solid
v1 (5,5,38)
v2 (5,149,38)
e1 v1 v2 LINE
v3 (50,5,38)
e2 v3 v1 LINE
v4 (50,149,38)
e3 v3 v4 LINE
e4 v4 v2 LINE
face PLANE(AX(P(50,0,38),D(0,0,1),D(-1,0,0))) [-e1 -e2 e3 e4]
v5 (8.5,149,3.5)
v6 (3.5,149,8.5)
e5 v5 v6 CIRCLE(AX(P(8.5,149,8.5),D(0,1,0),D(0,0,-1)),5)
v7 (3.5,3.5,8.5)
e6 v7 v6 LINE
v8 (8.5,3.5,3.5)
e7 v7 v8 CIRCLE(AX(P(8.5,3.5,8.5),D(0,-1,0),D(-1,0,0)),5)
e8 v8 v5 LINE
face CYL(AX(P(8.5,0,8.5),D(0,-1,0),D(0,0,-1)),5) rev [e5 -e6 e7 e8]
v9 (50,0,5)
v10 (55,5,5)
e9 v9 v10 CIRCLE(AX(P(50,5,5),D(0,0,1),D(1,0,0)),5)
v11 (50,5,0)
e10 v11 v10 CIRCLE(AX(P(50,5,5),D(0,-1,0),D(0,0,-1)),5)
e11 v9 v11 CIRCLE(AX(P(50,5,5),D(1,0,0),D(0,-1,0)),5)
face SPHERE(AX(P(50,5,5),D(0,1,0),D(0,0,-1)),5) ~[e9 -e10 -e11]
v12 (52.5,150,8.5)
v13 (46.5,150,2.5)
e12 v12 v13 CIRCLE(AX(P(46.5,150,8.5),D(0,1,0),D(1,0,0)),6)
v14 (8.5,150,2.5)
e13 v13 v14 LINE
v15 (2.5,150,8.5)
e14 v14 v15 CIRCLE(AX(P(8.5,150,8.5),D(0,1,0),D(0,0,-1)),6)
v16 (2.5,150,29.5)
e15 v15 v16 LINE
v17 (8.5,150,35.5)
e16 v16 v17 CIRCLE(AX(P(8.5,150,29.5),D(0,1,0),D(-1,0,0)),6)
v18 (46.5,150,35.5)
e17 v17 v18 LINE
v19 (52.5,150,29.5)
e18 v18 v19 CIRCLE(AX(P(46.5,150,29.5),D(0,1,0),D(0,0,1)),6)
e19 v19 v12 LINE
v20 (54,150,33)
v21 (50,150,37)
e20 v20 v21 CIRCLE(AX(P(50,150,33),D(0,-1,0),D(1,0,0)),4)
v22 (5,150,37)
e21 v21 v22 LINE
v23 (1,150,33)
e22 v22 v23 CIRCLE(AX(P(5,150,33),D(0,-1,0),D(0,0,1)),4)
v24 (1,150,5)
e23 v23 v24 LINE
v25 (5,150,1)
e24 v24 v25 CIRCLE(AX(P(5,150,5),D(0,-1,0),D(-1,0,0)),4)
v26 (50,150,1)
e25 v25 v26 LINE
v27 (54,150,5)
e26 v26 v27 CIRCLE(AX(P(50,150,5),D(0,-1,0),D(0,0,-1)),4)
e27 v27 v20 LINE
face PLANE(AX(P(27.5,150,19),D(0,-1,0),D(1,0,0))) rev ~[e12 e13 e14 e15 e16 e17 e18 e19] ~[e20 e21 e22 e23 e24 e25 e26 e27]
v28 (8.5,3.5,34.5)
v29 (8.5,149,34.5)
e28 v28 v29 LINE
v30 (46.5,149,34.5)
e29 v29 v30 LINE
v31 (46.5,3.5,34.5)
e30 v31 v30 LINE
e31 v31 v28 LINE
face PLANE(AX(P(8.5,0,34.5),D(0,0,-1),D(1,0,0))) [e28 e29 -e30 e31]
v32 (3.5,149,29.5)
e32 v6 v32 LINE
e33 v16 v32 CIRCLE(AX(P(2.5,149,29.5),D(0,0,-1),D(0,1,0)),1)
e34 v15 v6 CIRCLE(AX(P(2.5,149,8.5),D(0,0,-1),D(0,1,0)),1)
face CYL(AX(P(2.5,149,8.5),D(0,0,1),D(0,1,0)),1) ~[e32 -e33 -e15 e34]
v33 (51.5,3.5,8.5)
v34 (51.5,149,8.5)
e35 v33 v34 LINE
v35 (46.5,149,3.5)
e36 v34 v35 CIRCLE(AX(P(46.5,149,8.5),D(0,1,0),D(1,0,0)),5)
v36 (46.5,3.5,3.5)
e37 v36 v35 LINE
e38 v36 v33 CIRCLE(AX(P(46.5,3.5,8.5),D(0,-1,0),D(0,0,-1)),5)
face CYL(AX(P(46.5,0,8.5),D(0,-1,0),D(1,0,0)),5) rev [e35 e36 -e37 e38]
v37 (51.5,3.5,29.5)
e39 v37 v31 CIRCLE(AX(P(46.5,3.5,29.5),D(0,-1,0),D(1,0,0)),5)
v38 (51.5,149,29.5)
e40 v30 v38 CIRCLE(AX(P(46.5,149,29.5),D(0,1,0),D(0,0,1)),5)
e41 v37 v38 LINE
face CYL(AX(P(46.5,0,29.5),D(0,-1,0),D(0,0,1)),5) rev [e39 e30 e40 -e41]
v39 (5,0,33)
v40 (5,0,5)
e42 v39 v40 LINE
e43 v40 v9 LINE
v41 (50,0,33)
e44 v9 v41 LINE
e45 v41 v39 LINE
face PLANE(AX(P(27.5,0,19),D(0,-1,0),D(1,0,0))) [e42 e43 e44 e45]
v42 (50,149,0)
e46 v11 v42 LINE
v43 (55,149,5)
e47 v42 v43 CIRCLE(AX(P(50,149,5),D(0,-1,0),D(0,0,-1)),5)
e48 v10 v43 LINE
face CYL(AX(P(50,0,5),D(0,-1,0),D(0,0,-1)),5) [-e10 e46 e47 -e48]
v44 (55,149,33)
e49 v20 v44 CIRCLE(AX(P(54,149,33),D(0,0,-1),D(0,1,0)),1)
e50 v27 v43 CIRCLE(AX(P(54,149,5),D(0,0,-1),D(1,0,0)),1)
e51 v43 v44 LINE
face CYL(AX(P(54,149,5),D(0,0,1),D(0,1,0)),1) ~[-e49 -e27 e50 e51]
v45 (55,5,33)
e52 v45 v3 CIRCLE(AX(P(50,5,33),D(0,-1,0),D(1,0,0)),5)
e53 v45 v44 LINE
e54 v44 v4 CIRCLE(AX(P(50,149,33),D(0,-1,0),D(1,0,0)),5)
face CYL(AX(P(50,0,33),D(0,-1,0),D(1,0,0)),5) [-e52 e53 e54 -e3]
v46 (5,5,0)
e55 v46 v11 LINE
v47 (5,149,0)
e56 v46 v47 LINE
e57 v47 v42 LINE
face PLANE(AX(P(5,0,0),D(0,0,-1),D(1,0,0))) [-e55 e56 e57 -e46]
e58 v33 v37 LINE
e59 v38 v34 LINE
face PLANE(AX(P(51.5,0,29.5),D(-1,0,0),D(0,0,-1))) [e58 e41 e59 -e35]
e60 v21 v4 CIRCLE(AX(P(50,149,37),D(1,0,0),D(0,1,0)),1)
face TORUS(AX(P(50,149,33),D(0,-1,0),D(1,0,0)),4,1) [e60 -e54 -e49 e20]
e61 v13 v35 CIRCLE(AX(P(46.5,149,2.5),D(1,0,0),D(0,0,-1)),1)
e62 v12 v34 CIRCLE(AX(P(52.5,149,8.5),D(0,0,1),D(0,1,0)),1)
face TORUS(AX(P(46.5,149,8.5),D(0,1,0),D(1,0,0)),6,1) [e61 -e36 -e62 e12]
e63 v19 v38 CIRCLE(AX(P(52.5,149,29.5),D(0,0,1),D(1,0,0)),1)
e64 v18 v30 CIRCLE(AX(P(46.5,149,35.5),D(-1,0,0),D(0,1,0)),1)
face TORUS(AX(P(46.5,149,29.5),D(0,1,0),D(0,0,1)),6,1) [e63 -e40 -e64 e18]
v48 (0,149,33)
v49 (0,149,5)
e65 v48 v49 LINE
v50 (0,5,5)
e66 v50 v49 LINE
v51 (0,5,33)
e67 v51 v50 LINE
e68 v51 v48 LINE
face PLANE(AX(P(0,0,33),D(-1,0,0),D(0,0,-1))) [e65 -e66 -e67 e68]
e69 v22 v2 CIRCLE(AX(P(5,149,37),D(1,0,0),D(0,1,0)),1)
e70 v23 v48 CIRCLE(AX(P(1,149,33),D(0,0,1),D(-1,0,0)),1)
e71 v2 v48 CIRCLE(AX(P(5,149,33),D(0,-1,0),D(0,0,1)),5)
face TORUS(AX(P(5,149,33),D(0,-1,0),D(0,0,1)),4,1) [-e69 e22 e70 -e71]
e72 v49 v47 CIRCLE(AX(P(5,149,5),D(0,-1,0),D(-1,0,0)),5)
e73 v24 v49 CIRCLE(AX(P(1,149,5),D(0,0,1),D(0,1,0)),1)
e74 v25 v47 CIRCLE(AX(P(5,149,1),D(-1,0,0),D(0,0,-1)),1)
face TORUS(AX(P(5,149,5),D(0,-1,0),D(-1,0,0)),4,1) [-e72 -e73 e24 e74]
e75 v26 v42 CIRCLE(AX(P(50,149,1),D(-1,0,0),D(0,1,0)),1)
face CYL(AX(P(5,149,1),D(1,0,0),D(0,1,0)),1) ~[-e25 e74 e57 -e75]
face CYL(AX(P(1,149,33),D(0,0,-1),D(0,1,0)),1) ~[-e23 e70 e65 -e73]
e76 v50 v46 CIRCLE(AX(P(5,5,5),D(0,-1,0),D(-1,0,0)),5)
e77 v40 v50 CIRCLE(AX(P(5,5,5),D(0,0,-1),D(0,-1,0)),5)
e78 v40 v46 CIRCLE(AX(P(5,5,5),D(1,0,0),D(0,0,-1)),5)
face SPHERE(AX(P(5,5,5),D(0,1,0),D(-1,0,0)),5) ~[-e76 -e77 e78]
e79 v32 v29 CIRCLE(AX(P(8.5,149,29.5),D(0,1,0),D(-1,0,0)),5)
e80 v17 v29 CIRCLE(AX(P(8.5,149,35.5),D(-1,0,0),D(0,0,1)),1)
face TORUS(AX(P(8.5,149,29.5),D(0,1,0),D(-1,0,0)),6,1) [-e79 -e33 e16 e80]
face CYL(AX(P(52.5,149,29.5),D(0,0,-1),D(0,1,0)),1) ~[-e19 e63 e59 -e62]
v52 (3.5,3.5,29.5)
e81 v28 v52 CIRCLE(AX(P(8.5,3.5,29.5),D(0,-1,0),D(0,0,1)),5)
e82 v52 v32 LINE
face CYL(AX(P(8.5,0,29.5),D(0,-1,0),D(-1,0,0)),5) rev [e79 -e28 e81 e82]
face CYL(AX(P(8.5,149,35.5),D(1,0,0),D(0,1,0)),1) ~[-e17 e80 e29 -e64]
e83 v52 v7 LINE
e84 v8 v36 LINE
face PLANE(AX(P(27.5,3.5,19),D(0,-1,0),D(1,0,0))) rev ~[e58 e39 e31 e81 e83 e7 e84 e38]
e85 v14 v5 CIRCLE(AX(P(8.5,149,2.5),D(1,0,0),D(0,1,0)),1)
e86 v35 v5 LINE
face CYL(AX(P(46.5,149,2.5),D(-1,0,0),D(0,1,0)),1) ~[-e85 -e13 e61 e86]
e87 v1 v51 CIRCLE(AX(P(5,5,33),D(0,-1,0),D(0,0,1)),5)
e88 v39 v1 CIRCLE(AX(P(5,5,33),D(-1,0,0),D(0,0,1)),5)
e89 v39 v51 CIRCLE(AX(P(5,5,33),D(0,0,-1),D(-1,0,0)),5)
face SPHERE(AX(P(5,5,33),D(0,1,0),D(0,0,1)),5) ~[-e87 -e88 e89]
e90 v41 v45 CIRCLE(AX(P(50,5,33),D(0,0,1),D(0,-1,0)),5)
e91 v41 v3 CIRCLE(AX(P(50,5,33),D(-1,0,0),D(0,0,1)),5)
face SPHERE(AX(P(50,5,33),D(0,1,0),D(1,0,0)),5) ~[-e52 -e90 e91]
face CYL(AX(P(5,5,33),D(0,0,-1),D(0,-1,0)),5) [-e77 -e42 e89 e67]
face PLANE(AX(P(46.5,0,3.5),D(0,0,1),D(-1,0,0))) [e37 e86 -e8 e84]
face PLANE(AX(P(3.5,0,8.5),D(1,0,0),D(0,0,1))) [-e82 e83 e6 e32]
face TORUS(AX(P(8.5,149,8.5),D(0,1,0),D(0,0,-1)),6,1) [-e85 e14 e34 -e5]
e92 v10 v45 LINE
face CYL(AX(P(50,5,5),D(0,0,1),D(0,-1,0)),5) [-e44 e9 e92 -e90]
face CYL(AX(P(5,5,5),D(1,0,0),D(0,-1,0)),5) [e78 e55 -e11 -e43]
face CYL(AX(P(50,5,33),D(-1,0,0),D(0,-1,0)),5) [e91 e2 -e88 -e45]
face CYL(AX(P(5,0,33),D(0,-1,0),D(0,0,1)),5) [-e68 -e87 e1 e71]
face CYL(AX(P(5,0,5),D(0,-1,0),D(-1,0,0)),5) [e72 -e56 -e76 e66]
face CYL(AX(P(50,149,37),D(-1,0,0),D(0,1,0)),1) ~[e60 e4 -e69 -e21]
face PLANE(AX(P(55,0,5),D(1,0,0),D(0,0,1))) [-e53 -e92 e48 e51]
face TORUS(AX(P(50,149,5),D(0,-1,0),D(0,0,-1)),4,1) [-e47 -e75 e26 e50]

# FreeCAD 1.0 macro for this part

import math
import FreeCAD as App
import Part
import Sketcher

V = App.Vector


def edges_at(feature, points):
    """Names of the edges that pass closest to the given points."""
    edges = feature.Shape.Edges
    near = lambda p: min(range(len(edges)), key=lambda i: edges[i].distToShape(Part.Vertex(*p))[0])
    return sorted({f"Edge{near(p) + 1}" for p in points})

doc = App.newDocument("Part")
params = doc.addObject("Spreadsheet::Sheet", "Params")
for row, (alias, value) in enumerate([
    ("sketch1_radius", "5 mm"),
    ("sketch1_width", "38 mm"),
    ("sketch1_height", "21 mm"),
    ("pad1_length", "3.5 mm"),
    ("sketch2_radius", "5 mm"),
    ("sketch2_width", "45 mm"),
    ("sketch2_width2", "38 mm"),
    ("sketch2_height", "28 mm"),
    ("sketch2_height2", "21 mm"),
    ("pad2_length", "150 mm"),
    ("fillet_radius", "5 mm"),
    ("fillet2_radius", "1 mm"),
], start=1):
    params.set(f"A{row}", alias)
    params.set(f"B{row}", "=" + value)
    params.setAlias(f"B{row}", alias)

body = doc.addObject("PartDesign::Body", "Body")

# Sketch on XZ plane
sketch1 = doc.addObject("Sketcher::SketchObject", "Sketch")
body.addObject(sketch1)
sketch1.AttachmentSupport = (doc.XZ_Plane, [""])
sketch1.MapMode = "FlatFace"
sketch1.addGeometry([
    Part.ArcOfCircle(Part.Circle(V(8, 8, 0), V(0, 0, 1), 5), math.radians(180), math.radians(270)),  # 0
    Part.LineSegment(V(8, 4, 0), V(46, 4, 0)),  # 1
    Part.ArcOfCircle(Part.Circle(V(46, 8, 0), V(0, 0, 1), 5), math.radians(-90), math.radians(0)),  # 2
    Part.LineSegment(V(52, 8, 0), V(52, 30, 0)),  # 3
    Part.ArcOfCircle(Part.Circle(V(46, 30, 0), V(0, 0, 1), 5), math.radians(0), math.radians(90)),  # 4
    Part.LineSegment(V(46, 34, 0), V(8, 34, 0)),  # 5
    Part.ArcOfCircle(Part.Circle(V(8, 30, 0), V(0, 0, 1), 5), math.radians(90), math.radians(180)),  # 6
    Part.LineSegment(V(4, 30, 0), V(4, 8, 0)),  # 7
], False)
sketch1.addConstraint([
    Sketcher.Constraint("Tangent", 0, 2, 1, 1),
    Sketcher.Constraint("Tangent", 1, 2, 2, 1),
    Sketcher.Constraint("Tangent", 2, 2, 3, 1),
    Sketcher.Constraint("Tangent", 3, 2, 4, 1),
    Sketcher.Constraint("Tangent", 4, 2, 5, 1),
    Sketcher.Constraint("Tangent", 5, 2, 6, 1),
    Sketcher.Constraint("Tangent", 6, 2, 7, 1),
    Sketcher.Constraint("Tangent", 7, 2, 0, 1),
    Sketcher.Constraint("Horizontal", 1),
    Sketcher.Constraint("Vertical", 3),
    Sketcher.Constraint("Horizontal", 5),
    Sketcher.Constraint("Vertical", 7),
    Sketcher.Constraint("Equal", 0, 2),
    Sketcher.Constraint("Equal", 2, 4),
    Sketcher.Constraint("Equal", 4, 6),
    Sketcher.Constraint("Radius", 0, 5.0),
    Sketcher.Constraint("DistanceX", 1, 1, 1, 2, 38.0),
    Sketcher.Constraint("DistanceY", 3, 1, 3, 2, 21.0),
    Sketcher.Constraint("DistanceX", -1, 1, 0, 3, 8.5),
    Sketcher.Constraint("DistanceY", -1, 1, 0, 3, 8.5),
])
sketch1.setExpression("Constraints[15]", "Params.sketch1_radius")
sketch1.setExpression("Constraints[16]", "Params.sketch1_width")
sketch1.setExpression("Constraints[17]", "Params.sketch1_height")
pad1 = doc.addObject("PartDesign::Pad", "Pad")
body.addObject(pad1)
pad1.Profile = sketch1
pad1.setExpression("Length", "Params.pad1_length")
pad1.Reversed = True

# Sketch on XZ plane
sketch2 = doc.addObject("Sketcher::SketchObject", "Sketch001")
body.addObject(sketch2)
sketch2.AttachmentSupport = (doc.XZ_Plane, [""])
sketch2.MapMode = "FlatFace"
sketch2.addGeometry([
    Part.ArcOfCircle(Part.Circle(V(5, 5, 0), V(0, 0, 1), 5), math.radians(180), math.radians(270)),  # 0
    Part.LineSegment(V(5, 0, 0), V(50, 0, 0)),  # 1
    Part.ArcOfCircle(Part.Circle(V(50, 5, 0), V(0, 0, 1), 5), math.radians(-90), math.radians(0)),  # 2
    Part.LineSegment(V(55, 5, 0), V(55, 33, 0)),  # 3
    Part.ArcOfCircle(Part.Circle(V(50, 33, 0), V(0, 0, 1), 5), math.radians(0), math.radians(90)),  # 4
    Part.LineSegment(V(50, 38, 0), V(5, 38, 0)),  # 5
    Part.ArcOfCircle(Part.Circle(V(5, 33, 0), V(0, 0, 1), 5), math.radians(90), math.radians(180)),  # 6
    Part.LineSegment(V(0, 33, 0), V(0, 5, 0)),  # 7
    Part.ArcOfCircle(Part.Circle(V(46, 8, 0), V(0, 0, 1), 5), math.radians(-90), math.radians(0)),  # 8
    Part.LineSegment(V(46, 4, 0), V(8, 4, 0)),  # 9
    Part.ArcOfCircle(Part.Circle(V(8, 8, 0), V(0, 0, 1), 5), math.radians(180), math.radians(270)),  # 10
    Part.LineSegment(V(4, 8, 0), V(4, 30, 0)),  # 11
    Part.ArcOfCircle(Part.Circle(V(8, 30, 0), V(0, 0, 1), 5), math.radians(90), math.radians(180)),  # 12
    Part.LineSegment(V(8, 34, 0), V(46, 34, 0)),  # 13
    Part.ArcOfCircle(Part.Circle(V(46, 30, 0), V(0, 0, 1), 5), math.radians(0), math.radians(90)),  # 14
    Part.LineSegment(V(52, 30, 0), V(52, 8, 0)),  # 15
], False)
sketch2.addConstraint([
    Sketcher.Constraint("Tangent", 0, 2, 1, 1),
    Sketcher.Constraint("Tangent", 1, 2, 2, 1),
    Sketcher.Constraint("Tangent", 2, 2, 3, 1),
    Sketcher.Constraint("Tangent", 3, 2, 4, 1),
    Sketcher.Constraint("Tangent", 4, 2, 5, 1),
    Sketcher.Constraint("Tangent", 5, 2, 6, 1),
    Sketcher.Constraint("Tangent", 6, 2, 7, 1),
    Sketcher.Constraint("Tangent", 7, 2, 0, 1),
    Sketcher.Constraint("Tangent", 8, 1, 9, 1),
    Sketcher.Constraint("Tangent", 9, 2, 10, 2),
    Sketcher.Constraint("Tangent", 10, 1, 11, 1),
    Sketcher.Constraint("Tangent", 11, 2, 12, 2),
    Sketcher.Constraint("Tangent", 12, 1, 13, 1),
    Sketcher.Constraint("Tangent", 13, 2, 14, 2),
    Sketcher.Constraint("Tangent", 14, 1, 15, 1),
    Sketcher.Constraint("Tangent", 15, 2, 8, 2),
    Sketcher.Constraint("Horizontal", 1),
    Sketcher.Constraint("Vertical", 3),
    Sketcher.Constraint("Horizontal", 5),
    Sketcher.Constraint("Vertical", 7),
    Sketcher.Constraint("Horizontal", 9),
    Sketcher.Constraint("Vertical", 11),
    Sketcher.Constraint("Horizontal", 13),
    Sketcher.Constraint("Vertical", 15),
    Sketcher.Constraint("Equal", 0, 2),
    Sketcher.Constraint("Equal", 2, 4),
    Sketcher.Constraint("Equal", 4, 6),
    Sketcher.Constraint("Equal", 6, 8),
    Sketcher.Constraint("Equal", 8, 10),
    Sketcher.Constraint("Equal", 10, 12),
    Sketcher.Constraint("Equal", 12, 14),
    Sketcher.Constraint("PointOnObject", 0, 2, -1),
    Sketcher.Constraint("PointOnObject", 6, 2, -2),
    Sketcher.Constraint("Radius", 0, 5.0),
    Sketcher.Constraint("DistanceX", 1, 1, 1, 2, 45.0),
    Sketcher.Constraint("DistanceX", 9, 2, 9, 1, 38.0),
    Sketcher.Constraint("DistanceY", 3, 1, 3, 2, 28.0),
    Sketcher.Constraint("DistanceY", 11, 1, 11, 2, 21.0),
    Sketcher.Constraint("DistanceX", -1, 1, 8, 3, 46.5),
    Sketcher.Constraint("DistanceY", -1, 1, 8, 3, 8.5),
])
sketch2.setExpression("Constraints[33]", "Params.sketch2_radius")
sketch2.setExpression("Constraints[34]", "Params.sketch2_width")
sketch2.setExpression("Constraints[35]", "Params.sketch2_width2")
sketch2.setExpression("Constraints[36]", "Params.sketch2_height")
sketch2.setExpression("Constraints[37]", "Params.sketch2_height2")
pad2 = doc.addObject("PartDesign::Pad", "Pad001")
body.addObject(pad2)
pad2.Profile = sketch2
pad2.setExpression("Length", "Params.pad2_length")
pad2.Reversed = True
doc.recompute()

fillet = doc.addObject("PartDesign::Fillet", "Fillet")
body.addObject(fillet)
fillet.Base = (pad2, edges_at(pad2, [
    (1.464, 0, 36.536),
    (0, 0, 19),
    (27.5, 0, 38),
    (53.536, 0, 36.536),
    (55, 0, 19),
    (53.536, 0, 1.464),
    (27.5, 0, 0),
    (1.464, 0, 1.464),
]))
fillet.setExpression("Radius", "Params.fillet_radius")
doc.recompute()

fillet2 = doc.addObject("PartDesign::Fillet", "Fillet001")
body.addObject(fillet2)
fillet2.Base = (fillet, edges_at(fillet, [
    (27.5, 150, 38),
    (53.536, 150, 36.536),
    (55, 150, 19),
    (53.536, 150, 1.464),
    (27.5, 150, 0),
    (1.464, 150, 1.464),
    (0, 150, 19),
    (1.464, 150, 36.536),
    (3.5, 150, 19),
    (4.964, 150, 33.036),
    (27.5, 150, 34.5),
    (50.036, 150, 33.036),
    (51.5, 150, 19),
    (50.036, 150, 4.964),
    (27.5, 150, 3.5),
    (4.964, 150, 4.964),
]))
fillet2.setExpression("Radius", "Params.fillet2_radius")

doc.recompute()
